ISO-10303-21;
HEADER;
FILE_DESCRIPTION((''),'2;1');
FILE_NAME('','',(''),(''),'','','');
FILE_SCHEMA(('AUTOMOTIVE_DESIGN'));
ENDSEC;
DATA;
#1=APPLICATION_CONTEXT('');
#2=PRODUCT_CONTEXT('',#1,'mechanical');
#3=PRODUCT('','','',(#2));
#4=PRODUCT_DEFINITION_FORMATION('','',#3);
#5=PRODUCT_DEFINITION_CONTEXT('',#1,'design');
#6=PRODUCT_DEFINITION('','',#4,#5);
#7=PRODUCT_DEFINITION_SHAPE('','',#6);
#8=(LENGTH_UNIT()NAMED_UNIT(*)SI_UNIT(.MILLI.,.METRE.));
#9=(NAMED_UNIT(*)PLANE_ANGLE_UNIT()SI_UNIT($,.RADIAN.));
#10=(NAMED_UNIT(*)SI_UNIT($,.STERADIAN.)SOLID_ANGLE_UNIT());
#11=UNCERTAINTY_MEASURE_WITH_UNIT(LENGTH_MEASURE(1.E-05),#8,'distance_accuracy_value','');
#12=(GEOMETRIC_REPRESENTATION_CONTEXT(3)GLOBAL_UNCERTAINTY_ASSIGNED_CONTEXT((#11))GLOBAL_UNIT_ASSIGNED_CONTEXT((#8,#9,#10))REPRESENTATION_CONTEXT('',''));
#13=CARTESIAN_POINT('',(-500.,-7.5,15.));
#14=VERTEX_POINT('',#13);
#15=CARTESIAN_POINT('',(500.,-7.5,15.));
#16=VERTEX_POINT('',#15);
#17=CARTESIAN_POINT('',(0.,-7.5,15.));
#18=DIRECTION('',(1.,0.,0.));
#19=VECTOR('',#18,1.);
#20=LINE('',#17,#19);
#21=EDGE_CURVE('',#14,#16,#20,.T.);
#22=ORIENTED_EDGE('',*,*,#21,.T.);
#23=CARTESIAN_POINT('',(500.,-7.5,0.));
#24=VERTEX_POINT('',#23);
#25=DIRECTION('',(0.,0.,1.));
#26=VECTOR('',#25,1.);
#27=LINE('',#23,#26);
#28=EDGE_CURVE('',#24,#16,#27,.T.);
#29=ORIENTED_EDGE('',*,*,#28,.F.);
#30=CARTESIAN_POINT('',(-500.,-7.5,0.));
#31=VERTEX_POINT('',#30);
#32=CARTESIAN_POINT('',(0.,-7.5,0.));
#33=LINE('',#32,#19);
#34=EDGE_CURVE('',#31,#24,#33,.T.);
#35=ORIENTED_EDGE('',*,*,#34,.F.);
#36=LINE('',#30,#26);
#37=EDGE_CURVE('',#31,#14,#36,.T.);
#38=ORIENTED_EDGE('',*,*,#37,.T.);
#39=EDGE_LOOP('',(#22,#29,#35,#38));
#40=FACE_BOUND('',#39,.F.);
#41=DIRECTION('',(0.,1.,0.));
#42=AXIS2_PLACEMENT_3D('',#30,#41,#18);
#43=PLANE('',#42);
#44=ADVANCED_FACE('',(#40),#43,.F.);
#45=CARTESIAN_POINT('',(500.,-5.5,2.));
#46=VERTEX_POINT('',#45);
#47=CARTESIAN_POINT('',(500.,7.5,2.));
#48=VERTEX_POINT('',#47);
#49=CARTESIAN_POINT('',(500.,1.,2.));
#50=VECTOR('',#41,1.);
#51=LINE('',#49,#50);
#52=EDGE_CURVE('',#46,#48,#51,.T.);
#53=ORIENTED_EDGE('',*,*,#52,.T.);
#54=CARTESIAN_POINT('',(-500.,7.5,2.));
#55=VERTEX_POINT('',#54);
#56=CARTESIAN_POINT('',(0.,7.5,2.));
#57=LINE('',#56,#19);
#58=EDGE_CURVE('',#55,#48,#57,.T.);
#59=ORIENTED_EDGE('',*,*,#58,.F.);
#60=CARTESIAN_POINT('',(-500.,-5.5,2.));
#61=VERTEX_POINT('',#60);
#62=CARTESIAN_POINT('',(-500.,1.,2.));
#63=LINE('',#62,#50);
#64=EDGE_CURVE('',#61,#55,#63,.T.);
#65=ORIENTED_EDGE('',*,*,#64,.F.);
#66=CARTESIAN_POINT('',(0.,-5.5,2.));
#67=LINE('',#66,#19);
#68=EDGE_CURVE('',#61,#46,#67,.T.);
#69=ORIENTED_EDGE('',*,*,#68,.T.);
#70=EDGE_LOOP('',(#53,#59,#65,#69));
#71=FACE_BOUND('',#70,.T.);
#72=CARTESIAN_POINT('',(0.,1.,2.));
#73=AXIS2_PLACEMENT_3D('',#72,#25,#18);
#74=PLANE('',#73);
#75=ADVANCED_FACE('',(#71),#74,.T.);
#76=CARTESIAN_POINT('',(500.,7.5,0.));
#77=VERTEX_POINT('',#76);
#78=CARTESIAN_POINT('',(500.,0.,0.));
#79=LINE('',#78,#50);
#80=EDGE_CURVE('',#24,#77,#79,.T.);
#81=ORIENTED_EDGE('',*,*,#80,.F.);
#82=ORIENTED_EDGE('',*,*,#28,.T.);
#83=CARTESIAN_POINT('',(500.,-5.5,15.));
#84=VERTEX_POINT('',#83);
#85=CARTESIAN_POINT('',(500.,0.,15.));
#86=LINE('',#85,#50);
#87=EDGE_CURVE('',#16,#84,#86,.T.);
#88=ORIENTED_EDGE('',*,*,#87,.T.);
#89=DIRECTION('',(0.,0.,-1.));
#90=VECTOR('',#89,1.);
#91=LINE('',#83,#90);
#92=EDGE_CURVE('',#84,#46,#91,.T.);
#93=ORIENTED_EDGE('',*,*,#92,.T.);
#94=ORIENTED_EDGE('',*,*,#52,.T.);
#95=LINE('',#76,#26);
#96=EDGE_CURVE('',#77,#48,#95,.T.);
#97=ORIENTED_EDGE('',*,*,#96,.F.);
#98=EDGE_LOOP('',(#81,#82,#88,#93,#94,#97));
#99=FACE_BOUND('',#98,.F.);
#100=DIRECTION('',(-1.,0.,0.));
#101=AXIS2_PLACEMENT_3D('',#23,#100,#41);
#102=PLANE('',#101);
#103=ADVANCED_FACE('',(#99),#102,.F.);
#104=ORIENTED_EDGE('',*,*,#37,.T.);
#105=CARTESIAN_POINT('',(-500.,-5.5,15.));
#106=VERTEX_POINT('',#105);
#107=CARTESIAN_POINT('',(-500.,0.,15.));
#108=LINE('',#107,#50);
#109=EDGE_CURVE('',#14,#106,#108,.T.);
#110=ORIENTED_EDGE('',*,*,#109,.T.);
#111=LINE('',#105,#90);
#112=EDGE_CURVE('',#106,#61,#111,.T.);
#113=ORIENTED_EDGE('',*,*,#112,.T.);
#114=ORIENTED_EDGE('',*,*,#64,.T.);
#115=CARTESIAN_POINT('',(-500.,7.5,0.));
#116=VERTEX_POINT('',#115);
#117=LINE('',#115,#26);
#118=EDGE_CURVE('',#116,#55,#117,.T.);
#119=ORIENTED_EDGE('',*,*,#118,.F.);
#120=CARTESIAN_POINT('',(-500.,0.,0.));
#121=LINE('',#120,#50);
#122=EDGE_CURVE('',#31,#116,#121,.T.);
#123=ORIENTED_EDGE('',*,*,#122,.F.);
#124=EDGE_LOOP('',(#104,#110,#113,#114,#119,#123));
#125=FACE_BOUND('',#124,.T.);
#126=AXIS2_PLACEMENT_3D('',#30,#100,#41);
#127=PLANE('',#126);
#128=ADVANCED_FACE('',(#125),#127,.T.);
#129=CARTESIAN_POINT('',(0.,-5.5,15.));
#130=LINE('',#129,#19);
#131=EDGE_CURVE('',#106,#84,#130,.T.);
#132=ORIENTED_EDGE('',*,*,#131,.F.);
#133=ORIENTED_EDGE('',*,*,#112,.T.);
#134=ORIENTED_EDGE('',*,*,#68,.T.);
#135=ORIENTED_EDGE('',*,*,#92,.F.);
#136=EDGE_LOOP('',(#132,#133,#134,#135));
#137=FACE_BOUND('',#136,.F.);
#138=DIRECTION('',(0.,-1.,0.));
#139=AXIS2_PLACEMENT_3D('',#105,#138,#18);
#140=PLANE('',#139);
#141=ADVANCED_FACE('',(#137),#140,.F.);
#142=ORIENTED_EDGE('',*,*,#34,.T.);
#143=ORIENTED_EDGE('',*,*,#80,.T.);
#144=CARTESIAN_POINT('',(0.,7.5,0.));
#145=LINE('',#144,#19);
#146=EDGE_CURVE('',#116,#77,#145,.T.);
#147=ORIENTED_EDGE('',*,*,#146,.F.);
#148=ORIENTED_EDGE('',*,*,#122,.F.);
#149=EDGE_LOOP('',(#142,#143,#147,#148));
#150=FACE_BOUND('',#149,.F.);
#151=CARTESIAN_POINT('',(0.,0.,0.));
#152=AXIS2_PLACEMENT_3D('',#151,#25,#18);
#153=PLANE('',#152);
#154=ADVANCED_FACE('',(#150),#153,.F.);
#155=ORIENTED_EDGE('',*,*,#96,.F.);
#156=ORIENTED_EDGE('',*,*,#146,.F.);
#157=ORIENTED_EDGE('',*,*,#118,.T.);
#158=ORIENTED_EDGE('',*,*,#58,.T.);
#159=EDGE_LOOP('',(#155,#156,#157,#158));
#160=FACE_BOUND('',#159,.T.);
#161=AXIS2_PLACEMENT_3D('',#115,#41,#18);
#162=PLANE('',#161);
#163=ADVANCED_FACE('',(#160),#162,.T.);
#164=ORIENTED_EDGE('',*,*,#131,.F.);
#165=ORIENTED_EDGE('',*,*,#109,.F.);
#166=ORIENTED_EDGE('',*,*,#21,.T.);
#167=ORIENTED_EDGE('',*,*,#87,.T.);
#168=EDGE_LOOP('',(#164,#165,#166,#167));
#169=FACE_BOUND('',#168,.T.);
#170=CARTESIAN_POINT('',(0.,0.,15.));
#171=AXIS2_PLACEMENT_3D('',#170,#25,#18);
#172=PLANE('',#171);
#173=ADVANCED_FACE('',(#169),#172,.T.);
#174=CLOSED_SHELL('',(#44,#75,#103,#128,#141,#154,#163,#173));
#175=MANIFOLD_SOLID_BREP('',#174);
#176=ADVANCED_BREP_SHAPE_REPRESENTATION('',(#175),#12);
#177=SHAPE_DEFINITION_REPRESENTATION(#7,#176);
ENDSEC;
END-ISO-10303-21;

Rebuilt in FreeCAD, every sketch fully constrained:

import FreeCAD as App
import Part
import Sketcher

V = App.Vector

doc = App.newDocument("Part")
params = doc.addObject("Spreadsheet::Sheet", "Params")
for row, (alias, value) in enumerate([
    ("sketch1_width", "1000 mm"),
    ("sketch1_height", "15 mm"),
    ("pad1_length", "15 mm"),
    ("sketch2_width", "1000 mm"),
    ("sketch2_height", "13 mm"),
    ("pocket1_length", "13 mm"),
], start=1):
    params.set(f"A{row}", alias)
    params.set(f"B{row}", "=" + value)
    params.setAlias(f"B{row}", alias)

body = doc.addObject("PartDesign::Body", "Body")

sketch1 = body.newObject("Sketcher::SketchObject", "Sketch")
sketch1.AttachmentSupport = (doc.getObject("XY_Plane"), [""])
sketch1.MapMode = "FlatFace"
sketch1.addGeometry([
    Part.LineSegment(V(-500, 7.5, 0), V(-500, -7.5, 0)),
    Part.LineSegment(V(-500, -7.5, 0), V(500, -7.5, 0)),
    Part.LineSegment(V(500, -7.5, 0), V(500, 7.5, 0)),
    Part.LineSegment(V(500, 7.5, 0), V(-500, 7.5, 0)),
], False)
sketch1.addConstraint([
    Sketcher.Constraint("Coincident", 0, 2, 1, 1),
    Sketcher.Constraint("Coincident", 1, 2, 2, 1),
    Sketcher.Constraint("Coincident", 2, 2, 3, 1),
    Sketcher.Constraint("Coincident", 3, 2, 0, 1),
    Sketcher.Constraint("Vertical", 0),
    Sketcher.Constraint("Horizontal", 1),
    Sketcher.Constraint("Vertical", 2),
    Sketcher.Constraint("Horizontal", 3),
    Sketcher.Constraint("Symmetric", 0, 2, 2, 2, -1, 1),
    Sketcher.Constraint("DistanceX", 1, 1, 1, 2, 1000.0),
    Sketcher.Constraint("DistanceY", 0, 2, 0, 1, 15.0),
])
sketch1.setExpression("Constraints[9]", "Params.sketch1_width")
sketch1.setExpression("Constraints[10]", "Params.sketch1_height")
pad1 = body.newObject("PartDesign::Pad", "Pad")
pad1.Profile = sketch1
pad1.setExpression("Length", "Params.pad1_length")

sketch2 = body.newObject("Sketcher::SketchObject", "Sketch001")
sketch2.AttachmentSupport = (doc.getObject("XY_Plane"), [""])
sketch2.MapMode = "FlatFace"
sketch2.AttachmentOffset = App.Placement(V(0, 0, 15), App.Rotation())
sketch2.addGeometry([
    Part.LineSegment(V(-500, 7.5, 0), V(-500, -5.5, 0)),
    Part.LineSegment(V(-500, -5.5, 0), V(500, -5.5, 0)),
    Part.LineSegment(V(500, -5.5, 0), V(500, 7.5, 0)),
    Part.LineSegment(V(500, 7.5, 0), V(-500, 7.5, 0)),
], False)
sketch2.addConstraint([
    Sketcher.Constraint("Coincident", 0, 2, 1, 1),
    Sketcher.Constraint("Coincident", 1, 2, 2, 1),
    Sketcher.Constraint("Coincident", 2, 2, 3, 1),
    Sketcher.Constraint("Coincident", 3, 2, 0, 1),
    Sketcher.Constraint("Vertical", 0),
    Sketcher.Constraint("Horizontal", 1),
    Sketcher.Constraint("Vertical", 2),
    Sketcher.Constraint("Horizontal", 3),
    Sketcher.Constraint("DistanceX", 1, 1, 1, 2, 1000.0),
    Sketcher.Constraint("DistanceY", 0, 2, 0, 1, 13.0),
    Sketcher.Constraint("DistanceX", 0, 2, -1, 1, 500.0),
    Sketcher.Constraint("DistanceY", 0, 2, -1, 1, 5.5),
])
sketch2.setExpression("Constraints[8]", "Params.sketch2_width")
sketch2.setExpression("Constraints[9]", "Params.sketch2_height")
pocket1 = body.newObject("PartDesign::Pocket", "Pocket")
pocket1.Profile = sketch2
pocket1.setExpression("Length", "Params.pocket1_length")

doc.recompute()
